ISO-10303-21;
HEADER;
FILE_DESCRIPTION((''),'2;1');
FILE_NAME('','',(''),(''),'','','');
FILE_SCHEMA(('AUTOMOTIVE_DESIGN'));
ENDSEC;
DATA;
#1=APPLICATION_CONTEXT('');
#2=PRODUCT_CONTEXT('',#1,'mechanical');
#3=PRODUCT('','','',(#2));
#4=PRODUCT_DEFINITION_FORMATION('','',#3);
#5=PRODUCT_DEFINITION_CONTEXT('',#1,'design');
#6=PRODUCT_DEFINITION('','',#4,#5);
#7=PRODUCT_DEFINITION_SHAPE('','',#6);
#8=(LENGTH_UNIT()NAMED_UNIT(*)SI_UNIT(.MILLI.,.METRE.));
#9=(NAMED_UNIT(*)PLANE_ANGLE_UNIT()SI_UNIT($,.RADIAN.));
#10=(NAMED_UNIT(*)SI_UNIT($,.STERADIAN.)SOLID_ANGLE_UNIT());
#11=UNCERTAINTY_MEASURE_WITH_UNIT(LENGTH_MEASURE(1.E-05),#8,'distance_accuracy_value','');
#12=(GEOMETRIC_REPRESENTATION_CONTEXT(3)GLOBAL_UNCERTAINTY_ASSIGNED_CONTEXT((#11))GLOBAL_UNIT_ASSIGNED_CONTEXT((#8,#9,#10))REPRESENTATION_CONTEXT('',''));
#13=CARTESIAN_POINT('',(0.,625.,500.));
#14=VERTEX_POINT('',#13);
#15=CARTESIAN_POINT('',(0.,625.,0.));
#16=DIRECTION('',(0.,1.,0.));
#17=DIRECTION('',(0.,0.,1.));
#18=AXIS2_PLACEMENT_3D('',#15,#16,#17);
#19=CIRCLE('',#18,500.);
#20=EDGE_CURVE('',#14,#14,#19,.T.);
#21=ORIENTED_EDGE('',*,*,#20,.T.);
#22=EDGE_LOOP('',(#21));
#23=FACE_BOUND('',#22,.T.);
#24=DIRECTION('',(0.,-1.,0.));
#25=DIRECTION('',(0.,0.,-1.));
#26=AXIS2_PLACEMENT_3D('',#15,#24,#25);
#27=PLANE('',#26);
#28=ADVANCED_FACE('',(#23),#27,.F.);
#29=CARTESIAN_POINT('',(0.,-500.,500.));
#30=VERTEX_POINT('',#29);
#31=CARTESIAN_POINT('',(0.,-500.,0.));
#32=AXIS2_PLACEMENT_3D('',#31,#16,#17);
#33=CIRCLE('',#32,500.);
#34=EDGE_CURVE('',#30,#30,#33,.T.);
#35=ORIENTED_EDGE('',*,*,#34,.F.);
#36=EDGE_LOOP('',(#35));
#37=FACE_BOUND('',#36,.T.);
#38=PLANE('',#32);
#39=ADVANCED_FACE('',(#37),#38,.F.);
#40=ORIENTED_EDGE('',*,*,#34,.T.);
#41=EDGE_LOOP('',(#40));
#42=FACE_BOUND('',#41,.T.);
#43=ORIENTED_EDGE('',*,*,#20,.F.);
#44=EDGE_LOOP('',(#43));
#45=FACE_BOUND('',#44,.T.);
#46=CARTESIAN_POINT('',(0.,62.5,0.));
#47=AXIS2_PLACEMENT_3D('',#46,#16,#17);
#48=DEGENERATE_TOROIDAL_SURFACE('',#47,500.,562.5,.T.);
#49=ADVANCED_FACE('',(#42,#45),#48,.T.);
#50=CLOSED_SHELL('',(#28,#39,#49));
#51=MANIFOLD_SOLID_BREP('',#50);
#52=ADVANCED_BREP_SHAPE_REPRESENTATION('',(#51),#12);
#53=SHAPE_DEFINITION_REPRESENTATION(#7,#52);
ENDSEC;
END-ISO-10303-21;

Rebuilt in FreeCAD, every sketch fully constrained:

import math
import FreeCAD as App
import Part
import Sketcher
Q = App.Units.Quantity

doc = App.newDocument("Part")
body = doc.addObject("PartDesign::Body", "Body")

# Sketch on XY plane
sketch1 = body.newObject("Sketcher::SketchObject", "Sketch")
sketch1.AttachmentSupport = (doc.getObject("XY_Plane"), [""])
sketch1.MapMode = "FlatFace"
sketch1.addGeometry(Part.LineSegment(App.Vector(0, 625, 0), App.Vector(0, -500, 0)), False)
sketch1.addGeometry(Part.LineSegment(App.Vector(0, -500, 0), App.Vector(500, -500, 0)), False)
sketch1.addGeometry(Part.ArcOfCircle(Part.Circle(App.Vector(500, 62, 0), App.Vector(0, 0, 1), 562), math.radians(-90), math.radians(90)), False)
sketch1.addGeometry(Part.LineSegment(App.Vector(500, 625, 0), App.Vector(0, 625, 0)), False)
sketch1.addConstraint(Sketcher.Constraint("Coincident", 0, 2, 1, 1))
sketch1.addConstraint(Sketcher.Constraint("Tangent", 1, 2, 2, 1))
sketch1.addConstraint(Sketcher.Constraint("Tangent", 2, 2, 3, 1))
sketch1.addConstraint(Sketcher.Constraint("Coincident", 3, 2, 0, 1))
sketch1.addConstraint(Sketcher.Constraint("Vertical", 0))
sketch1.addConstraint(Sketcher.Constraint("Horizontal", 1))
sketch1.addConstraint(Sketcher.Constraint("Horizontal", 3))
sketch1.addConstraint(Sketcher.Constraint("PointOnObject", 0, 2, -2))
sketch1.addConstraint(Sketcher.Constraint("Radius", 2, Q("562.5 mm")))
sketch1.addConstraint(Sketcher.Constraint("DistanceX", 1, 1, 1, 2, Q("500 mm")))
sketch1.addConstraint(Sketcher.Constraint("DistanceY", 0, 2, -1, 1, Q("500 mm")))
revolution = body.newObject("PartDesign::Revolution", "Revolution")
revolution.Profile = sketch1
revolution.ReferenceAxis = (sketch1, ["V_Axis"])
revolution.Angle = 360

doc.recompute()
